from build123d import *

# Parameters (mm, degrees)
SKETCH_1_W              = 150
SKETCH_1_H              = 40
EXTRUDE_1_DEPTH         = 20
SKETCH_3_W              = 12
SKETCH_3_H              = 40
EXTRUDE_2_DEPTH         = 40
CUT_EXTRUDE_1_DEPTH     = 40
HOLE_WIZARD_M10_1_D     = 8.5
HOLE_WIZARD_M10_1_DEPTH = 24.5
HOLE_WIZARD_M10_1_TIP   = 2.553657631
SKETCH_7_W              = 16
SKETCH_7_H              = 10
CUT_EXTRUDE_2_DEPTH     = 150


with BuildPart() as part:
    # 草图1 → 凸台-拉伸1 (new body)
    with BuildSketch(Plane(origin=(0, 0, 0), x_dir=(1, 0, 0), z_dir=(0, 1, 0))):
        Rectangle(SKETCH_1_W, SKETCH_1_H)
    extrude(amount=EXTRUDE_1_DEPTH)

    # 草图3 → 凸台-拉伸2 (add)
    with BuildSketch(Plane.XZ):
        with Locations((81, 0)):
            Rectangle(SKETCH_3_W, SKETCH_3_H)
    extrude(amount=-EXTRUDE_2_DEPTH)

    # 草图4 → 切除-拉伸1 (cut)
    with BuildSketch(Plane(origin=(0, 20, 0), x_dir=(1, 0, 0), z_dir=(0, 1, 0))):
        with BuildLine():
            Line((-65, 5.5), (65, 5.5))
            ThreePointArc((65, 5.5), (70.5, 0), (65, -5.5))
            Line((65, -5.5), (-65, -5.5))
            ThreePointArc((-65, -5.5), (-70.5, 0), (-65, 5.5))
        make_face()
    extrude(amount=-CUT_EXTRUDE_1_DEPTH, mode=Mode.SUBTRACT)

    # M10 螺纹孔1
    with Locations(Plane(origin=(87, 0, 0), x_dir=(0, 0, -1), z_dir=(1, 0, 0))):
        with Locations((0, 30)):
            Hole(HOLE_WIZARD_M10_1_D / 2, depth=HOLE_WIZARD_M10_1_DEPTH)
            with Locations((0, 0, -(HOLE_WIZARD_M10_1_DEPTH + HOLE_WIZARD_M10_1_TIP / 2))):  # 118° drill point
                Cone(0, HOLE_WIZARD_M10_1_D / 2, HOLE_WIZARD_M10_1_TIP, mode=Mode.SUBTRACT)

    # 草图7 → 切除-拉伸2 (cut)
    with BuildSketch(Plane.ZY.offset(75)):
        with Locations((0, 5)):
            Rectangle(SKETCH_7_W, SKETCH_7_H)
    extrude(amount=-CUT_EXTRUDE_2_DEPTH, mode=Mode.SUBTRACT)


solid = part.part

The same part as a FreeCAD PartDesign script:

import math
import FreeCAD as App
import Part
import Sketcher
from FreeCAD import Vector
Q = App.Units.Quantity


def add_polygon(sketch, points):
    """Adds a closed chain of lines whose ends are joined by coincident constraints."""
    first, n = sketch.GeometryCount, len(points)
    for a, b in zip(points, points[1:] + points[:1]):
        sketch.addGeometry(Part.LineSegment(App.Vector(*a, 0), App.Vector(*b, 0)), False)
    for i in range(n):
        sketch.addConstraint(Sketcher.Constraint("Coincident", first + i, 2, first + (i + 1) % n, 1))

doc = App.newDocument("Part")
body = doc.addObject("PartDesign::Body", "Body")

# Sketch on XZ plane
sketch1 = doc.addObject("Sketcher::SketchObject", "Sketch")
body.addObject(sketch1)
sketch1.AttachmentSupport = (doc.XZ_Plane, [""])
sketch1.MapMode = "FlatFace"
add_polygon(sketch1, [(-75, -20), (-75, 20), (75, 20), (75, -20)])  # lines 0-3
sketch1.addConstraint([
    Sketcher.Constraint("Vertical", 0),
    Sketcher.Constraint("Horizontal", 1),
    Sketcher.Constraint("Vertical", 2),
    Sketcher.Constraint("Horizontal", 3),
    Sketcher.Constraint("Symmetric", 0, 2, 2, 2, -1, 1),
    Sketcher.Constraint("DistanceX", 1, 1, 1, 2, Q("150 mm")),
    Sketcher.Constraint("DistanceY", 0, 1, 0, 2, Q("40 mm")),
])
pad1 = doc.addObject("PartDesign::Pad", "Pad")
body.addObject(pad1)
pad1.Profile = sketch1
pad1.Length = 20
pad1.Reversed = True

# Sketch on XZ plane
sketch2 = doc.addObject("Sketcher::SketchObject", "Sketch001")
body.addObject(sketch2)
sketch2.AttachmentSupport = (doc.XZ_Plane, [""])
sketch2.MapMode = "FlatFace"
add_polygon(sketch2, [(75, 20), (75, -20), (87, -20), (87, 20)])  # lines 0-3
sketch2.addConstraint([
    Sketcher.Constraint("Vertical", 0),
    Sketcher.Constraint("Horizontal", 1),
    Sketcher.Constraint("Vertical", 2),
    Sketcher.Constraint("Horizontal", 3),
    Sketcher.Constraint("DistanceX", 1, 1, 1, 2, Q("12 mm")),
    Sketcher.Constraint("DistanceY", 0, 2, 0, 1, Q("40 mm")),
    Sketcher.Constraint("DistanceX", -1, 1, 0, 2, Q("75 mm")),
    Sketcher.Constraint("DistanceY", 0, 2, -1, 1, Q("20 mm")),
])
pad2 = doc.addObject("PartDesign::Pad", "Pad001")
body.addObject(pad2)
pad2.Profile = sketch2
pad2.Length = 40
pad2.Reversed = True

# Sketch on XZ plane
sketch3 = doc.addObject("Sketcher::SketchObject", "Sketch002")
body.addObject(sketch3)
sketch3.AttachmentSupport = (doc.XZ_Plane, [""])
sketch3.MapMode = "FlatFace"
sketch3.AttachmentOffset = App.Placement(Vector(0, 0, -20), App.Rotation())
sketch3.addGeometry([
    Part.LineSegment(Vector(65, -6, 0), Vector(-65, -6, 0)),
    Part.ArcOfCircle(Part.Circle(Vector(-65, 0, 0), Vector(0, 0, 1), 6), math.radians(90), math.radians(270)),
    Part.LineSegment(Vector(-65, 6, 0), Vector(65, 6, 0)),
    Part.ArcOfCircle(Part.Circle(Vector(65, 0, 0), Vector(0, 0, 1), 6), math.radians(-90), math.radians(90)),
], False)
sketch3.addConstraint([
    Sketcher.Constraint("Tangent", 0, 2, 1, 2),
    Sketcher.Constraint("Tangent", 1, 1, 2, 1),
    Sketcher.Constraint("Tangent", 2, 2, 3, 2),
    Sketcher.Constraint("Tangent", 3, 1, 0, 1),
    Sketcher.Constraint("Horizontal", 0),
    Sketcher.Constraint("Horizontal", 2),
    Sketcher.Constraint("Symmetric", 1, 3, 3, 3, -1, 1),
    Sketcher.Constraint("Radius", 1, Q("5.5 mm")),
    Sketcher.Constraint("DistanceX", 0, 2, 0, 1, Q("130 mm")),
])
pocket1 = doc.addObject("PartDesign::Pocket", "Pocket")
body.addObject(pocket1)
pocket1.Profile = sketch3
pocket1.Length = 40
pocket1.Reversed = True

# Sketch on YZ plane
sketch4 = doc.addObject("Sketcher::SketchObject", "Sketch003")
body.addObject(sketch4)
sketch4.AttachmentSupport = (doc.YZ_Plane, [""])
sketch4.MapMode = "FlatFace"
sketch4.AttachmentOffset = App.Placement(Vector(0, 0, 87), App.Rotation())
sketch4.addGeometry(Part.Circle(Vector(30, 0, 0), Vector(0, 0, 1), 4.2), False)
sketch4.addConstraint([
    Sketcher.Constraint("PointOnObject", 0, 3, -1),
    Sketcher.Constraint("Diameter", 0, Q("8.5 mm")),
    Sketcher.Constraint("DistanceX", -1, 1, 0, 3, Q("30 mm")),
])
doc.recompute()
hole = doc.addObject("PartDesign::Hole", "Hole")
body.addObject(hole)
hole.Profile = sketch4
hole.ThreadType = "None"
hole.Diameter = 8.5
hole.DepthType = "Dimension"
hole.Depth = 24.5
hole.DrillPoint = "Angled"
hole.DrillPointAngle = 118

# Sketch on YZ plane
sketch5 = doc.addObject("Sketcher::SketchObject", "Sketch004")
body.addObject(sketch5)
sketch5.AttachmentSupport = (doc.YZ_Plane, [""])
sketch5.MapMode = "FlatFace"
sketch5.AttachmentOffset = App.Placement(Vector(0, 0, -75), App.Rotation())
add_polygon(sketch5, [(10, -8), (0, -8), (0, 8), (10, 8)])  # lines 0-3
sketch5.addConstraint([
    Sketcher.Constraint("Horizontal", 0),
    Sketcher.Constraint("Vertical", 1),
    Sketcher.Constraint("Horizontal", 2),
    Sketcher.Constraint("Vertical", 3),
    Sketcher.Constraint("Symmetric", 0, 2, 1, 2, -1, 1),
    Sketcher.Constraint("DistanceX", 0, 2, 0, 1, Q("10 mm")),
    Sketcher.Constraint("DistanceY", 1, 1, 1, 2, Q("16 mm")),
])
pocket2 = doc.addObject("PartDesign::Pocket", "Pocket001")
body.addObject(pocket2)
pocket2.Profile = sketch5
pocket2.Length = 150
pocket2.Reversed = True

doc.recompute()
